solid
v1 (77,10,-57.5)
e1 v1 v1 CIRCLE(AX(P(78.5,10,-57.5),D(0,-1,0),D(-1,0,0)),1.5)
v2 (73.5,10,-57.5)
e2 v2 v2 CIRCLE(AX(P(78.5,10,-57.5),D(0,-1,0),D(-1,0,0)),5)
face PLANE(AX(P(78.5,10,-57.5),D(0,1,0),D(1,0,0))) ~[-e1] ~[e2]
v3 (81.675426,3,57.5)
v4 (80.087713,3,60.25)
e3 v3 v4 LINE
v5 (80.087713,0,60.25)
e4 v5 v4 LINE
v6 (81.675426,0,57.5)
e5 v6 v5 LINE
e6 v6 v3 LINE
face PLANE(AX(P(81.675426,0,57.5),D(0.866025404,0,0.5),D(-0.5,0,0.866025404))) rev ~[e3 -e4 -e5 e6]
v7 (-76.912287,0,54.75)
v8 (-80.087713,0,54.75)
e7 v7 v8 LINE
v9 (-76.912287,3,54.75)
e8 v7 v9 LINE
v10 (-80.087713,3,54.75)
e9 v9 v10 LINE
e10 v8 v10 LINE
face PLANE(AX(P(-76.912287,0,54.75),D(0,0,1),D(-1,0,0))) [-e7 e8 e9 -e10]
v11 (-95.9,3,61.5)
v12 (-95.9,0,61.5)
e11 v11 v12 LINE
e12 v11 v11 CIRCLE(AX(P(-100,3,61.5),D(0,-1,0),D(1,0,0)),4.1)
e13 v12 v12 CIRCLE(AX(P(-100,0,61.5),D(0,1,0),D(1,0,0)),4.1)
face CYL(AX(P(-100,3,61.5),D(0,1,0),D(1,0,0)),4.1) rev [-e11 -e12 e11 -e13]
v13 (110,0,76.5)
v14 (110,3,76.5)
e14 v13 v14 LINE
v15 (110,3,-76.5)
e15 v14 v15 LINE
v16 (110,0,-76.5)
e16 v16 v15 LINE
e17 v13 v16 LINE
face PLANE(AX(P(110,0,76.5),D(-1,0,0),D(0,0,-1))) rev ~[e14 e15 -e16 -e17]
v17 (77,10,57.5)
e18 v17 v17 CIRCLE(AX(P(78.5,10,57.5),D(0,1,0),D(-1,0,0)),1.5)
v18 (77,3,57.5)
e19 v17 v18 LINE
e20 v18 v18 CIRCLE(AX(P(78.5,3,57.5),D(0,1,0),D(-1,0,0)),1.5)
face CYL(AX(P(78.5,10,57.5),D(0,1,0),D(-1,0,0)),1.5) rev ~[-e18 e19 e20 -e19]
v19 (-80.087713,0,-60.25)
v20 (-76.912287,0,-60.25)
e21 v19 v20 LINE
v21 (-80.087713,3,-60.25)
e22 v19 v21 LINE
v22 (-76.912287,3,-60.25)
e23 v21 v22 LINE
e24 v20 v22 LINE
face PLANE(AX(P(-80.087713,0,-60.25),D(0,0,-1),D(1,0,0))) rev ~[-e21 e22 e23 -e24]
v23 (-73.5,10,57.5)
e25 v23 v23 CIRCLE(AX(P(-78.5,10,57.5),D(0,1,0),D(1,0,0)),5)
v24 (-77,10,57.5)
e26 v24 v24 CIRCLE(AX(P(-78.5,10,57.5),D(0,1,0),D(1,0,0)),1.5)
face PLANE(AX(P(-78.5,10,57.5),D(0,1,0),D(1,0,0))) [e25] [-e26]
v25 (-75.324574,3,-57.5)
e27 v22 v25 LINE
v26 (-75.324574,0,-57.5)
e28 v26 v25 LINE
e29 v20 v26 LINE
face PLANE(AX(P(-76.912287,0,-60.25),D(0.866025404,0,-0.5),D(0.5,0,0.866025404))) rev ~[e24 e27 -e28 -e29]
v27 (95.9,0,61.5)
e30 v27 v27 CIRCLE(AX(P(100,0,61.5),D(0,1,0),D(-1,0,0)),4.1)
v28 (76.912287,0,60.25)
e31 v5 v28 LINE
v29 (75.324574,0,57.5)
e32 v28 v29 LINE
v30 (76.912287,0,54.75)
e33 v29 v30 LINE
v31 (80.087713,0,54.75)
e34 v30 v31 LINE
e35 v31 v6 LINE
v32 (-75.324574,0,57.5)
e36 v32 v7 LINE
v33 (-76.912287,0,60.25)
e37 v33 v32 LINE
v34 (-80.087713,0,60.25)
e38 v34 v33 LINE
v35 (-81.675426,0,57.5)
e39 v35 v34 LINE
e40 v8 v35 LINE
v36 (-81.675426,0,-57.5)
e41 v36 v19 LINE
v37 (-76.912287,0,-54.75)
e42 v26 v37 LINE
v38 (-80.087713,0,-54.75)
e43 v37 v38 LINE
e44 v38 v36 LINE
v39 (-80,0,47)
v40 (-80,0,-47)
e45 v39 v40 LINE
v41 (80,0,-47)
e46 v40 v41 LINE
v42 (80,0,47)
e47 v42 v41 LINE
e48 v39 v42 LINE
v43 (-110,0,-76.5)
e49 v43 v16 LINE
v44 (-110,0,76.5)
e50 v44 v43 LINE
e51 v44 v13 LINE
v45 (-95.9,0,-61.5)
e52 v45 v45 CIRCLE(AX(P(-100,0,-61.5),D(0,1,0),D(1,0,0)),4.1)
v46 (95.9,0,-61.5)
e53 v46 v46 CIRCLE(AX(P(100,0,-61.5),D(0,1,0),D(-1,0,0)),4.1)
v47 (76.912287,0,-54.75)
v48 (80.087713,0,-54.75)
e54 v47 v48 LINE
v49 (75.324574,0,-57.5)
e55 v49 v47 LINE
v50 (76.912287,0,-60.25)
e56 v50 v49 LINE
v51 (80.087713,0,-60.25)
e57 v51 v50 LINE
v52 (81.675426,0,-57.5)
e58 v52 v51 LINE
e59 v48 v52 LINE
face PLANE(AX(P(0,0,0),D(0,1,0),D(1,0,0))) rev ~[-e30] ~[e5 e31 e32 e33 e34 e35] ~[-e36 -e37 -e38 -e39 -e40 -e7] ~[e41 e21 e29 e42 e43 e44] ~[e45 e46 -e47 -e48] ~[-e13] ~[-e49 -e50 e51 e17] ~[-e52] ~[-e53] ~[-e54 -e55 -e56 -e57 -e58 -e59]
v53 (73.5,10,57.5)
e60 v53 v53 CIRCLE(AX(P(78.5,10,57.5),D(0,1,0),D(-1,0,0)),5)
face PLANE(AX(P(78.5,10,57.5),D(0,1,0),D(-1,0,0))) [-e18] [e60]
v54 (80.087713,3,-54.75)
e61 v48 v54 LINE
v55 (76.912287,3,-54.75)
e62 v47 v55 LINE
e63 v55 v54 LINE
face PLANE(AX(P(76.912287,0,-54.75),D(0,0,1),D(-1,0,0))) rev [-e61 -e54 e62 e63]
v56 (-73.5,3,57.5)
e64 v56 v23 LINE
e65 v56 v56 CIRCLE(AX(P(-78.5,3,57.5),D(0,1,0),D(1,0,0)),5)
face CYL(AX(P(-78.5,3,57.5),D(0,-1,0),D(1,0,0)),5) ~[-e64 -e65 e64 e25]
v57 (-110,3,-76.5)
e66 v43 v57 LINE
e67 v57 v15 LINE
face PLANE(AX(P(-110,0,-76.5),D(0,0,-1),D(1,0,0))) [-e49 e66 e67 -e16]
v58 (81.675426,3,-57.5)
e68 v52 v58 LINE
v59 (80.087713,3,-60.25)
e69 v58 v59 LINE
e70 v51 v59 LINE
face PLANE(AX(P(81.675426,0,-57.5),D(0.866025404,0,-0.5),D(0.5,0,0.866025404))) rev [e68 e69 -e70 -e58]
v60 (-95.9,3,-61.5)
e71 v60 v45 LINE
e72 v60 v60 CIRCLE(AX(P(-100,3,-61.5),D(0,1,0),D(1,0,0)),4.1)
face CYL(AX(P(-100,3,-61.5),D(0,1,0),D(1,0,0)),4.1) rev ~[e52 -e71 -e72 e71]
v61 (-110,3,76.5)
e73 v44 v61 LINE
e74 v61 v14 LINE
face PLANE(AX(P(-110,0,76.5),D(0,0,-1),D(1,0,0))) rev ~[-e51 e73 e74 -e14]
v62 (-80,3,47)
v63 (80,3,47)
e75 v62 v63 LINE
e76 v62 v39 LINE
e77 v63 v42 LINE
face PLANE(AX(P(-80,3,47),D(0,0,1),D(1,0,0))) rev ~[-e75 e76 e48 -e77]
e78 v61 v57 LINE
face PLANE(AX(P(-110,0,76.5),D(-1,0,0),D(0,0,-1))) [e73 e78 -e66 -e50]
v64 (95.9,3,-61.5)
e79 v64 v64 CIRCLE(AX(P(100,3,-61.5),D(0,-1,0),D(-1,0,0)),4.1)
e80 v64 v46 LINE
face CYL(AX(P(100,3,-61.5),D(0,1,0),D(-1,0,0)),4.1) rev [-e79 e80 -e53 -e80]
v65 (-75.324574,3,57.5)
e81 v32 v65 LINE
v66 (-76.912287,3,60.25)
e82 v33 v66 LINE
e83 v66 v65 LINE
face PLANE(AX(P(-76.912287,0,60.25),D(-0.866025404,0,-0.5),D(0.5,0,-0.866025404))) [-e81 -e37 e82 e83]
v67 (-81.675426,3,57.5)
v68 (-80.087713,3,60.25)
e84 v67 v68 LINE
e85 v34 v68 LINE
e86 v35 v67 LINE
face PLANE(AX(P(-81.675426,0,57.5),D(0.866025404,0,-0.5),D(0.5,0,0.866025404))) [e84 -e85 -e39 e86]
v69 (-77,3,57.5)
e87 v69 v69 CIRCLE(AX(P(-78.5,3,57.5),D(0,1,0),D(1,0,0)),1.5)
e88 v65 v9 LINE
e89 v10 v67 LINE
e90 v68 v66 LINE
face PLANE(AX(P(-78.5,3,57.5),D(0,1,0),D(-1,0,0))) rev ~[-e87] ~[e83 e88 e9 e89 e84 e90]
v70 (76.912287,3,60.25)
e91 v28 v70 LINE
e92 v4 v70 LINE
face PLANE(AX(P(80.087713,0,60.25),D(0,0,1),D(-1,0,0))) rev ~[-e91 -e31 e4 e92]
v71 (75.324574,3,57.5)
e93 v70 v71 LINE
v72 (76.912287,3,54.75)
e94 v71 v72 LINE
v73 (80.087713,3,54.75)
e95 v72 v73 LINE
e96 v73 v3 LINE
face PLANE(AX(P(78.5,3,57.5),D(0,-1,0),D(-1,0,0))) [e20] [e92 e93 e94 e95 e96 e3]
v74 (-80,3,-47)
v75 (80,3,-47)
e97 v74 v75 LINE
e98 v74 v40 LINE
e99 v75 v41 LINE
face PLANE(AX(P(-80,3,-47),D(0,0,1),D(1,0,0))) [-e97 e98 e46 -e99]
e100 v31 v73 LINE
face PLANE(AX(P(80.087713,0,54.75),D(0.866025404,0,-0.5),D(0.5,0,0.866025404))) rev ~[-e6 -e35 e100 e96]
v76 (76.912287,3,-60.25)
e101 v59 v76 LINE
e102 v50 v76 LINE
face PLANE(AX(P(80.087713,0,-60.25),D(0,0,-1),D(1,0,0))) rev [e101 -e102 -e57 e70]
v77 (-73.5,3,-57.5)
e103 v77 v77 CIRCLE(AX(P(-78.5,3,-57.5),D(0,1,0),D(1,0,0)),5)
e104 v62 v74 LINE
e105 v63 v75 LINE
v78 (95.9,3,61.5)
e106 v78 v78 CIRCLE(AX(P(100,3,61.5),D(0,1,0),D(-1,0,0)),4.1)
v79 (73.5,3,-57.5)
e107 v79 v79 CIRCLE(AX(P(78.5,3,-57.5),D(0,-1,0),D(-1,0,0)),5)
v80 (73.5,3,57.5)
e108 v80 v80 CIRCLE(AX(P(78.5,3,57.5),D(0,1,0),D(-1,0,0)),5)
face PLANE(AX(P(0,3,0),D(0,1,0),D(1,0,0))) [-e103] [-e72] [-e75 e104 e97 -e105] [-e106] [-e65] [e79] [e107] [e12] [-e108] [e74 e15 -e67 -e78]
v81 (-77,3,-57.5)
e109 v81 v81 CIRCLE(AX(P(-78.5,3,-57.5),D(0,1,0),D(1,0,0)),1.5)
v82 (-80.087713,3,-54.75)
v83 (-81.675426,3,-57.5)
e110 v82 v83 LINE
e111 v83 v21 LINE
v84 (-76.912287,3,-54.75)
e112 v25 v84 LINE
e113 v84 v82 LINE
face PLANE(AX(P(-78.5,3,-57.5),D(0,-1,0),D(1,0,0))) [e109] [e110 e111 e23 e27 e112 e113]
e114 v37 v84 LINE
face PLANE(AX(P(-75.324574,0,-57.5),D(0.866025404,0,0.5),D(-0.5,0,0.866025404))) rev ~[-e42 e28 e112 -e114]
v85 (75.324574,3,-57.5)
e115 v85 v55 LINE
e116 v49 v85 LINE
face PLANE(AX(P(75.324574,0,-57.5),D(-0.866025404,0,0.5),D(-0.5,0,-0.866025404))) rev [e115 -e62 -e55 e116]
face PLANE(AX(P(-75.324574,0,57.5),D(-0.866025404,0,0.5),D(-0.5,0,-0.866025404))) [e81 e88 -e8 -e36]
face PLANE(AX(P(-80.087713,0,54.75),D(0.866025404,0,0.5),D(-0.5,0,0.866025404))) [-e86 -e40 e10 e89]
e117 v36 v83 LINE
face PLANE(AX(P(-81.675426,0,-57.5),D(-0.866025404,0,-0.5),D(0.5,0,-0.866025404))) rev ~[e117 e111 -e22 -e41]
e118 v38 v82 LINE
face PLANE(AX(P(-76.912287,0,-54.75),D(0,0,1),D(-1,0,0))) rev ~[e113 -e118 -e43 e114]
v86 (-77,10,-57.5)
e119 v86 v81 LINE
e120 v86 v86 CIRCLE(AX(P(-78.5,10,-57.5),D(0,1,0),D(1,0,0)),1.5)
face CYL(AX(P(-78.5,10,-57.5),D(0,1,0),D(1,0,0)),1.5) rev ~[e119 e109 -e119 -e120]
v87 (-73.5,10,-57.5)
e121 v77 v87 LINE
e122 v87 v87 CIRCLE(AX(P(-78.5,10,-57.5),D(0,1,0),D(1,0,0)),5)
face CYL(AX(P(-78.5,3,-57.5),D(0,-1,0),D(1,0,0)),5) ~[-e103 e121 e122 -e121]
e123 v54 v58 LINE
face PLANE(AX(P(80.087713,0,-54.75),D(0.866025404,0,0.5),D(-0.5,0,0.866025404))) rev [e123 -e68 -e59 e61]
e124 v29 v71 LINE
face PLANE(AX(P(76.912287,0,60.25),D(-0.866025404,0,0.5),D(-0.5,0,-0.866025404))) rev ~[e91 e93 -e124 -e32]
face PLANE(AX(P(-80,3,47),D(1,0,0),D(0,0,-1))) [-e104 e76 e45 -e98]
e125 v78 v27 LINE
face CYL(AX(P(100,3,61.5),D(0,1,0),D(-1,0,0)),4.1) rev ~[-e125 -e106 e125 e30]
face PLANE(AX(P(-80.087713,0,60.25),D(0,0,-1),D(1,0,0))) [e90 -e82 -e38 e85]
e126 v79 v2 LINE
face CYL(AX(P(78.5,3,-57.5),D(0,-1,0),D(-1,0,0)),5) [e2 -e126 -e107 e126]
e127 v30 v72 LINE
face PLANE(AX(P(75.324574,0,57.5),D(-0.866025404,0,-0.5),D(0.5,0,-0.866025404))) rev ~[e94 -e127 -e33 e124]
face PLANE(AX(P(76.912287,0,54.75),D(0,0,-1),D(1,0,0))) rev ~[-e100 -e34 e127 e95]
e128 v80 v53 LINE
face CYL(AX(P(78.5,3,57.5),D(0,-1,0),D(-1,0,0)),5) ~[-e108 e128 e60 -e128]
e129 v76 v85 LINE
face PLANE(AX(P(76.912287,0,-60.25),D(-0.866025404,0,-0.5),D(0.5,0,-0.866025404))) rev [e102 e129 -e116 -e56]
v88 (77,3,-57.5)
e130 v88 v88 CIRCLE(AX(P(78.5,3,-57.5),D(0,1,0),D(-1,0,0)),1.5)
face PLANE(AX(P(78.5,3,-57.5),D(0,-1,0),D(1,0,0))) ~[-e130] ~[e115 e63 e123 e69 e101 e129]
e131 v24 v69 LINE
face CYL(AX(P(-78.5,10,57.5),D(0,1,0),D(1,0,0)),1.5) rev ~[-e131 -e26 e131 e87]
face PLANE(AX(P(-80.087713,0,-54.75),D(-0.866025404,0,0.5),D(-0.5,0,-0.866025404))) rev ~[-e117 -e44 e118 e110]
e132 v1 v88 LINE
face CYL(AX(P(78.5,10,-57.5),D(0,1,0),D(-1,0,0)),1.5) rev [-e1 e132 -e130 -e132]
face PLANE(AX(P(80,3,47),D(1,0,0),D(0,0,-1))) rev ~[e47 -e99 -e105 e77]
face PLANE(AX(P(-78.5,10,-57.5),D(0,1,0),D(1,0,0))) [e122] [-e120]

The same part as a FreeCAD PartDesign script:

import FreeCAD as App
import Part
import Sketcher
Q = App.Units.Quantity


def add_polygon(sketch, points):
    """Adds a closed chain of lines whose ends are joined by coincident constraints."""
    first, n = sketch.GeometryCount, len(points)
    for a, b in zip(points, points[1:] + points[:1]):
        sketch.addGeometry(Part.LineSegment(App.Vector(*a, 0), App.Vector(*b, 0)), False)
    for i in range(n):
        sketch.addConstraint(Sketcher.Constraint("Coincident", first + i, 2, first + (i + 1) % n, 1))

doc = App.newDocument("Part")
body = doc.addObject("PartDesign::Body", "Body")

# Sketch on XZ plane
sketch1 = body.newObject("Sketcher::SketchObject", "Sketch")
sketch1.AttachmentSupport = (doc.getObject("XZ_Plane"), [""])
sketch1.MapMode = "FlatFace"
add_polygon(sketch1, [(-110, -76), (-110, 76), (110, 76), (110, -76)])  # lines 0-3
sketch1.addConstraint([
    Sketcher.Constraint("Vertical", 0),
    Sketcher.Constraint("Horizontal", 1),
    Sketcher.Constraint("Vertical", 2),
    Sketcher.Constraint("Horizontal", 3),
    Sketcher.Constraint("Symmetric", 0, 2, 2, 2, -1, 1),
    Sketcher.Constraint("DistanceX", 1, 1, 1, 2, 220.0),
    Sketcher.Constraint("DistanceY", 0, 1, 0, 2, 153.0),
])
pad1 = body.newObject("PartDesign::Pad", "Pad")
pad1.Profile = sketch1
pad1.Length = 3
pad1.Reversed = True

# Sketch on XZ plane
sketch2 = body.newObject("Sketcher::SketchObject", "Sketch001")
sketch2.AttachmentSupport = (doc.getObject("XZ_Plane"), [""])
sketch2.MapMode = "FlatFace"
sketch2.AttachmentOffset = App.Placement(App.Vector(0, 0, -3), App.Rotation())
add_polygon(sketch2, [(-80, -47), (-80, 47), (80, 47), (80, -47)])  # lines 0-3
sketch2.addConstraint([
    Sketcher.Constraint("Vertical", 0),
    Sketcher.Constraint("Horizontal", 1),
    Sketcher.Constraint("Vertical", 2),
    Sketcher.Constraint("Horizontal", 3),
    Sketcher.Constraint("Symmetric", 0, 2, 2, 2, -1, 1),
    Sketcher.Constraint("DistanceX", 1, 1, 1, 2, 160.0),
    Sketcher.Constraint("DistanceY", 0, 1, 0, 2, 94.0),
])
pocket1 = body.newObject("PartDesign::Pocket", "Pocket")
pocket1.Profile = sketch2
pocket1.Type = "ThroughAll"
pocket1.Reversed = True

# Sketch on XZ plane
sketch3 = body.newObject("Sketcher::SketchObject", "Sketch002")
sketch3.AttachmentSupport = (doc.getObject("XZ_Plane"), [""])
sketch3.MapMode = "FlatFace"
sketch3.AttachmentOffset = App.Placement(App.Vector(0, 0, -3), App.Rotation())
sketch3.addGeometry(Part.Circle(App.Vector(-100, -61.5, 0), App.Vector(0, 0, 1), 4.1), False)
sketch3.addConstraint([
    Sketcher.Constraint("Diameter", 0, 8.2),
    Sketcher.Constraint("DistanceX", 0, 3, -1, 1, 100.0),
    Sketcher.Constraint("DistanceY", 0, 3, -1, 1, 61.5),
])
pocket2 = body.newObject("PartDesign::Pocket", "Pocket001")
pocket2.Profile = sketch3
pocket2.Type = "ThroughAll"
pocket2.Reversed = True

# Sketch on XZ plane
sketch4 = body.newObject("Sketcher::SketchObject", "Sketch003")
sketch4.AttachmentSupport = (doc.getObject("XZ_Plane"), [""])
sketch4.MapMode = "FlatFace"
sketch4.AttachmentOffset = App.Placement(App.Vector(0, 0, -3), App.Rotation())
sketch4.addGeometry(Part.Circle(App.Vector(-78, -58, 0), App.Vector(0, 0, 1), 5), False)
sketch4.addConstraint([
    Sketcher.Constraint("Diameter", 0, 10.0),
    Sketcher.Constraint("DistanceX", 0, 3, -1, 1, 78.5),
    Sketcher.Constraint("DistanceY", 0, 3, -1, 1, 57.5),
])
pad2 = body.newObject("PartDesign::Pad", "Pad001")
pad2.Profile = sketch4
pad2.Length = 7
pad2.Reversed = True

# Sketch on XZ plane
sketch5 = body.newObject("Sketcher::SketchObject", "Sketch004")
sketch5.AttachmentSupport = (doc.getObject("XZ_Plane"), [""])
sketch5.MapMode = "FlatFace"
sketch5.AttachmentOffset = App.Placement(App.Vector(0, 0, -10), App.Rotation())
sketch5.addGeometry(Part.Circle(App.Vector(-78.5, -57.5, 0), App.Vector(0, 0, 1), 1.5), False)
sketch5.addConstraint([
    Sketcher.Constraint("Diameter", 0, 3.0),
    Sketcher.Constraint("DistanceX", 0, 3, -1, 1, 78.5),
    Sketcher.Constraint("DistanceY", 0, 3, -1, 1, 57.5),
])
pocket3 = body.newObject("PartDesign::Pocket", "Pocket002")
pocket3.Profile = sketch5
pocket3.Type = "ThroughAll"
pocket3.Reversed = True

# Sketch on XZ plane
sketch6 = body.newObject("Sketcher::SketchObject", "Sketch005")
sketch6.AttachmentSupport = (doc.getObject("XZ_Plane"), [""])
sketch6.MapMode = "FlatFace"
add_polygon(sketch6, [(-81.7, -57.5), (-80.1, -60.2), (-76.9, -60.2), (-75.3, -57.5), (-76.9, -54.8), (-80.1, -54.8)])  # lines 0-5
sketch6.addConstraint([
    Sketcher.Constraint("Horizontal", 1),
    Sketcher.Constraint("Horizontal", 4),
    Sketcher.Constraint("Parallel", 0, 3),
    Sketcher.Constraint("Parallel", 2, 5),
    Sketcher.Constraint("Horizontal", 2, 2, 5, 2),
    Sketcher.Constraint("Vertical", 1, 2, 3, 2),
    Sketcher.Constraint("Vertical", 0, 2, 4, 2),
    Sketcher.Constraint("Angle", 0, Q("-60 deg")),
    Sketcher.Constraint("DistanceY", 2, 2, -1, 1, 57.5),
    Sketcher.Constraint("DistanceY", 1, 2, 3, 2, 5.5),
    Sketcher.Constraint("DistanceX", 1, 1, 1, 2, 3.175426),
    Sketcher.Constraint("DistanceX", 0, 2, -1, 1, 80.087713),
])
pocket4 = body.newObject("PartDesign::Pocket", "Pocket003")
pocket4.Profile = sketch6
pocket4.Length = 3
doc.recompute()

mirrored = body.newObject("PartDesign::Mirrored", "Mirrored")
mirrored.Originals = [pocket2, pad2, pocket3, pocket4]
mirrored.MirrorPlane = (doc.getObject("YZ_Plane"), [""])
body.Tip = mirrored
doc.recompute()

mirrored2 = body.newObject("PartDesign::Mirrored", "Mirrored001")
mirrored2.Originals = [pocket1, pocket2]
mirrored2.MirrorPlane = (doc.getObject("XY_Plane"), [""])
body.Tip = mirrored2

# Sketch on XZ plane
sketch7 = body.newObject("Sketcher::SketchObject", "Sketch006")
sketch7.AttachmentSupport = (doc.getObject("XZ_Plane"), [""])
sketch7.MapMode = "FlatFace"
sketch7.AttachmentOffset = App.Placement(App.Vector(0, 0, -3), App.Rotation())
sketch7.addGeometry(Part.Circle(App.Vector(100, 61.5, 0), App.Vector(0, 0, 1), 4.1), False)
sketch7.addConstraint([
    Sketcher.Constraint("Diameter", 0, 8.2),
    Sketcher.Constraint("DistanceX", -1, 1, 0, 3, 100.0),
    Sketcher.Constraint("DistanceY", -1, 1, 0, 3, 61.5),
])
pocket5 = body.newObject("PartDesign::Pocket", "Pocket004")
pocket5.Profile = sketch7
pocket5.Type = "ThroughAll"
pocket5.Reversed = True

# Sketch on XZ plane
sketch8 = body.newObject("Sketcher::SketchObject", "Sketch007")
sketch8.AttachmentSupport = (doc.getObject("XZ_Plane"), [""])
sketch8.MapMode = "FlatFace"
sketch8.AttachmentOffset = App.Placement(App.Vector(0, 0, -3), App.Rotation())
sketch8.addGeometry(Part.Circle(App.Vector(78, 58, 0), App.Vector(0, 0, 1), 5), False)
sketch8.addConstraint([
    Sketcher.Constraint("Diameter", 0, 10.0),
    Sketcher.Constraint("DistanceX", -1, 1, 0, 3, 78.5),
    Sketcher.Constraint("DistanceY", -1, 1, 0, 3, 57.5),
])
pad3 = body.newObject("PartDesign::Pad", "Pad002")
pad3.Profile = sketch8
pad3.Length = 7
pad3.Reversed = True

# Sketch on XZ plane
sketch9 = body.newObject("Sketcher::SketchObject", "Sketch008")
sketch9.AttachmentSupport = (doc.getObject("XZ_Plane"), [""])
sketch9.MapMode = "FlatFace"
sketch9.AttachmentOffset = App.Placement(App.Vector(0, 0, -10), App.Rotation())
sketch9.addGeometry(Part.Circle(App.Vector(78.5, 57.5, 0), App.Vector(0, 0, 1), 1.5), False)
sketch9.addConstraint([
    Sketcher.Constraint("Diameter", 0, 3.0),
    Sketcher.Constraint("DistanceX", -1, 1, 0, 3, 78.5),
    Sketcher.Constraint("DistanceY", -1, 1, 0, 3, 57.5),
])
pocket6 = body.newObject("PartDesign::Pocket", "Pocket005")
pocket6.Profile = sketch9
pocket6.Type = "ThroughAll"
pocket6.Reversed = True

# Sketch on XZ plane
sketch10 = body.newObject("Sketcher::SketchObject", "Sketch009")
sketch10.AttachmentSupport = (doc.getObject("XZ_Plane"), [""])
sketch10.MapMode = "FlatFace"
add_polygon(sketch10, [(81.7, 57.5), (80.1, 60.2), (76.9, 60.2), (75.3, 57.5), (76.9, 54.8), (80.1, 54.8)])  # lines 0-5
sketch10.addConstraint([
    Sketcher.Constraint("Horizontal", 1),
    Sketcher.Constraint("Horizontal", 4),
    Sketcher.Constraint("Parallel", 0, 3),
    Sketcher.Constraint("Parallel", 2, 5),
    Sketcher.Constraint("Horizontal", 2, 2, 5, 2),
    Sketcher.Constraint("Vertical", 1, 2, 3, 2),
    Sketcher.Constraint("Vertical", 0, 2, 4, 2),
    Sketcher.Constraint("Angle", 0, Q("120 deg")),
    Sketcher.Constraint("DistanceY", -1, 1, 2, 2, 57.5),
    Sketcher.Constraint("DistanceY", 3, 2, 1, 2, 5.5),
    Sketcher.Constraint("DistanceX", 1, 2, 1, 1, 3.175426),
    Sketcher.Constraint("DistanceX", -1, 1, 0, 2, 80.087713),
])
pocket7 = body.newObject("PartDesign::Pocket", "Pocket006")
pocket7.Profile = sketch10
pocket7.Length = 3

# Sketch on XZ plane
sketch11 = body.newObject("Sketcher::SketchObject", "Sketch010")
sketch11.AttachmentSupport = (doc.getObject("XZ_Plane"), [""])
sketch11.MapMode = "FlatFace"
sketch11.AttachmentOffset = App.Placement(App.Vector(0, 0, -3), App.Rotation())
sketch11.addGeometry(Part.Circle(App.Vector(-78, 58, 0), App.Vector(0, 0, 1), 5), False)
sketch11.addConstraint([
    Sketcher.Constraint("Diameter", 0, 10.0),
    Sketcher.Constraint("DistanceX", 0, 3, -1, 1, 78.5),
    Sketcher.Constraint("DistanceY", -1, 1, 0, 3, 57.5),
])
pad4 = body.newObject("PartDesign::Pad", "Pad003")
pad4.Profile = sketch11
pad4.Length = 7
pad4.Reversed = True

# Sketch on XZ plane
sketch12 = body.newObject("Sketcher::SketchObject", "Sketch011")
sketch12.AttachmentSupport = (doc.getObject("XZ_Plane"), [""])
sketch12.MapMode = "FlatFace"
sketch12.AttachmentOffset = App.Placement(App.Vector(0, 0, -10), App.Rotation())
sketch12.addGeometry(Part.Circle(App.Vector(-78.5, 57.5, 0), App.Vector(0, 0, 1), 1.5), False)
sketch12.addConstraint([
    Sketcher.Constraint("Diameter", 0, 3.0),
    Sketcher.Constraint("DistanceX", 0, 3, -1, 1, 78.5),
    Sketcher.Constraint("DistanceY", -1, 1, 0, 3, 57.5),
])
pocket8 = body.newObject("PartDesign::Pocket", "Pocket007")
pocket8.Profile = sketch12
pocket8.Type = "ThroughAll"
pocket8.Reversed = True

# Sketch on XZ plane
sketch13 = body.newObject("Sketcher::SketchObject", "Sketch012")
sketch13.AttachmentSupport = (doc.getObject("XZ_Plane"), [""])
sketch13.MapMode = "FlatFace"
add_polygon(sketch13, [(-80.1, 60.2), (-81.7, 57.5), (-80.1, 54.8), (-76.9, 54.8), (-75.3, 57.5), (-76.9, 60.2)])  # lines 0-5
sketch13.addConstraint([
    Sketcher.Constraint("Horizontal", 2),
    Sketcher.Constraint("Horizontal", 5),
    Sketcher.Constraint("Parallel", 0, 3),
    Sketcher.Constraint("Parallel", 1, 4),
    Sketcher.Constraint("Horizontal", 0, 2, 3, 2),
    Sketcher.Constraint("Vertical", 2, 2, 4, 2),
    Sketcher.Constraint("Vertical", 1, 2, 5, 2),
    Sketcher.Constraint("Angle", 0, Q("-120 deg")),
    Sketcher.Constraint("DistanceY", -1, 1, 0, 2, 57.5),
    Sketcher.Constraint("DistanceY", 2, 2, 4, 2, 5.5),
    Sketcher.Constraint("DistanceX", 2, 1, 2, 2, 3.175426),
    Sketcher.Constraint("DistanceX", 0, 2, -1, 1, 81.675426),
])
pocket9 = body.newObject("PartDesign::Pocket", "Pocket008")
pocket9.Profile = sketch13
pocket9.Length = 3

doc.recompute()
